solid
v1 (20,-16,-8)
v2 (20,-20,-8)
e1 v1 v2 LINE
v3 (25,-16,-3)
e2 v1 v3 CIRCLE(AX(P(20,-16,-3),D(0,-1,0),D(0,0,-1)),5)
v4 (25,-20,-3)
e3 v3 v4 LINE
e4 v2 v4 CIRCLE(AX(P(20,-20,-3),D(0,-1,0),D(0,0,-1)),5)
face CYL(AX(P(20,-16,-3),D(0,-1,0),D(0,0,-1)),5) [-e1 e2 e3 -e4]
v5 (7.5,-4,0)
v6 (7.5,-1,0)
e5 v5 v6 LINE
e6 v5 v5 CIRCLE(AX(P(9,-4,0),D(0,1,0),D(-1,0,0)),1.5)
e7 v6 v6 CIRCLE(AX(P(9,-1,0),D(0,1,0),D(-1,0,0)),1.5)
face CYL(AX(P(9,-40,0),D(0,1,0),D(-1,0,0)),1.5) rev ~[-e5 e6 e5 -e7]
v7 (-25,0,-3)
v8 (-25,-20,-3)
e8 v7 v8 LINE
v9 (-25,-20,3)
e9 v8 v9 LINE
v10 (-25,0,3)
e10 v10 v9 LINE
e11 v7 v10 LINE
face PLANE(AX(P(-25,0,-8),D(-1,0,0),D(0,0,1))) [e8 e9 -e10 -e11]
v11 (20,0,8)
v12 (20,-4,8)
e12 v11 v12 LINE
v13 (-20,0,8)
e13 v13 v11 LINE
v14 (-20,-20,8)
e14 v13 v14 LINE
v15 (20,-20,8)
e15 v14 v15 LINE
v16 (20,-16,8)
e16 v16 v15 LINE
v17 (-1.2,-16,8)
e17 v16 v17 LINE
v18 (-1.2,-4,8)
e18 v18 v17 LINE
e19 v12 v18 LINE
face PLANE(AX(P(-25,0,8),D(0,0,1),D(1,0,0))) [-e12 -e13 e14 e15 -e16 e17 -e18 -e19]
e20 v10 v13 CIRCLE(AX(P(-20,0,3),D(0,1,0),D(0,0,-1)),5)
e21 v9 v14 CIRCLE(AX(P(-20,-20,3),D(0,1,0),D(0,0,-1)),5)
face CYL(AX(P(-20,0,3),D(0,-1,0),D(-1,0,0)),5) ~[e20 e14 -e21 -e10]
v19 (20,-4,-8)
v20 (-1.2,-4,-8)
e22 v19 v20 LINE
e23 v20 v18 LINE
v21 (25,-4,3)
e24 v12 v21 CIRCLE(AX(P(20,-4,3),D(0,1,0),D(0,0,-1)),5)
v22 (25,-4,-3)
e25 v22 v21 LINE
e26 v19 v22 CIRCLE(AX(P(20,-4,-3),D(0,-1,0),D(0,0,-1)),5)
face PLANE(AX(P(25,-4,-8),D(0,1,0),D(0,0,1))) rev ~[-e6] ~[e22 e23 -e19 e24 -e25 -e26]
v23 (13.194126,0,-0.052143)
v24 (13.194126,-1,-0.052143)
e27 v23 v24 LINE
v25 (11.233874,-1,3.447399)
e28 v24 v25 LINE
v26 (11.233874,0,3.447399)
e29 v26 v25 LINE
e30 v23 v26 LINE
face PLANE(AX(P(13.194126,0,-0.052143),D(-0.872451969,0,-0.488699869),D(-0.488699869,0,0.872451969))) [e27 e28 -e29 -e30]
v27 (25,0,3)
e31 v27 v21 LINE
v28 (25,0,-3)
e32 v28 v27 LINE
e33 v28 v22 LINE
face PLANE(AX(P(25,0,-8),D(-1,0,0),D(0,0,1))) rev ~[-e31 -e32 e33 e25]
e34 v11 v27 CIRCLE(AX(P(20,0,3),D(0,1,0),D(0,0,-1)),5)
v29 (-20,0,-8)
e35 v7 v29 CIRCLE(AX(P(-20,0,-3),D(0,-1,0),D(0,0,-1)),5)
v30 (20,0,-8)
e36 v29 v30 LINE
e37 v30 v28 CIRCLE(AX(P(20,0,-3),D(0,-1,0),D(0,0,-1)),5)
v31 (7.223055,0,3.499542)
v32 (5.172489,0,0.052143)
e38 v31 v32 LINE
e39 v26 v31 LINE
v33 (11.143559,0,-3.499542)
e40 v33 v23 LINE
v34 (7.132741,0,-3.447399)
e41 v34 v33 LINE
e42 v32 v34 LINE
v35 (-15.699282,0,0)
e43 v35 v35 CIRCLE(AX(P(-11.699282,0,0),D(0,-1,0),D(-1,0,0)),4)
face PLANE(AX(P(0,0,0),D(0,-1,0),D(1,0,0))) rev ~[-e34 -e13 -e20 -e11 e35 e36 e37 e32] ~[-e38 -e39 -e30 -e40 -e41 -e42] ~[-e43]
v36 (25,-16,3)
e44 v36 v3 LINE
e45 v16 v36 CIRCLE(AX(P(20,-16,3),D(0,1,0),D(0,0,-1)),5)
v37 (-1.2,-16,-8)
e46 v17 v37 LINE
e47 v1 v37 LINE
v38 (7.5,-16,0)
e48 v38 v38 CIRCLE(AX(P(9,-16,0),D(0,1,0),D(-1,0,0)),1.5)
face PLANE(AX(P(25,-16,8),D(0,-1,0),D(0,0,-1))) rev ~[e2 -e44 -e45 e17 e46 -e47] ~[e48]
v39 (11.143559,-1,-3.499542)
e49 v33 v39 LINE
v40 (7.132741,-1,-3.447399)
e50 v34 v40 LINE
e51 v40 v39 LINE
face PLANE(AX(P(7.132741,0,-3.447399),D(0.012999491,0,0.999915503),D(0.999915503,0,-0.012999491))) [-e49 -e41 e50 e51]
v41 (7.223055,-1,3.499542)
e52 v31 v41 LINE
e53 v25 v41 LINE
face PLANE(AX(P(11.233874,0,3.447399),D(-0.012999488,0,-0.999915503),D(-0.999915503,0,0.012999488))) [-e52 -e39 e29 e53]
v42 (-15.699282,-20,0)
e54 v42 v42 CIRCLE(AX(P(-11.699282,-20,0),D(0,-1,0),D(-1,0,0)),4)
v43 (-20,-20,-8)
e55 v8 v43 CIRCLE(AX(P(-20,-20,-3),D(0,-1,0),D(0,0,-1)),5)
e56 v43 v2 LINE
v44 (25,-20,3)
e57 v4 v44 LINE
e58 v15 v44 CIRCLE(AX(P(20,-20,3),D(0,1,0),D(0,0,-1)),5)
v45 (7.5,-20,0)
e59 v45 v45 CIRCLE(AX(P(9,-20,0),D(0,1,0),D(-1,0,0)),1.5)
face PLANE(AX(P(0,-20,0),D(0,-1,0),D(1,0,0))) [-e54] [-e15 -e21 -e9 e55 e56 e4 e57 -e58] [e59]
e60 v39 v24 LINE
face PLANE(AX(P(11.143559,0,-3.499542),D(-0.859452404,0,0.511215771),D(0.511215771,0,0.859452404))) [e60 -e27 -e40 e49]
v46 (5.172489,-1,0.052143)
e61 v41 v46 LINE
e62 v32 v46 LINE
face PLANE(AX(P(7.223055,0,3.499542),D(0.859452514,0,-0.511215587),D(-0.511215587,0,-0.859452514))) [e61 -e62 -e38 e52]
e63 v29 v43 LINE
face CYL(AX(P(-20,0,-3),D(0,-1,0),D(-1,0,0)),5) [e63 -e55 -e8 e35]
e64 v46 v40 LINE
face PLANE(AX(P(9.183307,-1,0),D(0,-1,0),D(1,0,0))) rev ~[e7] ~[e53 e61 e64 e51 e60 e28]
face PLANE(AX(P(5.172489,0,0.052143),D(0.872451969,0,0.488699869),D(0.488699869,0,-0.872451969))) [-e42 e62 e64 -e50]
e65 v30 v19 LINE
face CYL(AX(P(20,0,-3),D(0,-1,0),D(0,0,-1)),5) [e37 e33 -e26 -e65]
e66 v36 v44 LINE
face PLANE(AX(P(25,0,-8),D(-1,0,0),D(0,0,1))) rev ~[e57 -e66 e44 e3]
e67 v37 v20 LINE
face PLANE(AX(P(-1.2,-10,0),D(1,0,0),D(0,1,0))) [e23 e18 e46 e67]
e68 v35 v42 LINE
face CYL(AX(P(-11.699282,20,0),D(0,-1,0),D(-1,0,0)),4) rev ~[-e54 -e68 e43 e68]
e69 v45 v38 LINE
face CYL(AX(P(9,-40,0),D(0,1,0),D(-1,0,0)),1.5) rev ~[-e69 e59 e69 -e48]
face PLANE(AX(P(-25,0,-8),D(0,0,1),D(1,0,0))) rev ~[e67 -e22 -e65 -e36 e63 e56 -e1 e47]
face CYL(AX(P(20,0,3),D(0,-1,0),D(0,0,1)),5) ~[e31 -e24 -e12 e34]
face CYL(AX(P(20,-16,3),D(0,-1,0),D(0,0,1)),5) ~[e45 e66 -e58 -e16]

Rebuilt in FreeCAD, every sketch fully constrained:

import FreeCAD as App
import Part
import Sketcher
from FreeCAD import Vector
Q = App.Units.Quantity


def edges_at(feature, points):
    """Names of the edges that pass closest to the given points."""
    edges = feature.Shape.Edges
    near = lambda p: min(range(len(edges)), key=lambda i: edges[i].distToShape(Part.Vertex(*p))[0])
    return sorted({f"Edge{near(p) + 1}" for p in points})

doc = App.newDocument("Part")
body = doc.addObject("PartDesign::Body", "Body")

sketch1 = body.newObject("Sketcher::SketchObject", "Sketch")
sketch1.AttachmentSupport = (doc.getObject("XZ_Plane"), [""])
sketch1.MapMode = "FlatFace"
sketch1.addGeometry(Part.LineSegment(Vector(-25, 8, 0), Vector(-25, -8, 0)), False)
sketch1.addGeometry(Part.LineSegment(Vector(-25, -8, 0), Vector(25, -8, 0)), False)
sketch1.addGeometry(Part.LineSegment(Vector(25, -8, 0), Vector(25, 8, 0)), False)
sketch1.addGeometry(Part.LineSegment(Vector(25, 8, 0), Vector(-25, 8, 0)), False)
sketch1.addConstraint(Sketcher.Constraint("Coincident", 0, 2, 1, 1))
sketch1.addConstraint(Sketcher.Constraint("Coincident", 1, 2, 2, 1))
sketch1.addConstraint(Sketcher.Constraint("Coincident", 2, 2, 3, 1))
sketch1.addConstraint(Sketcher.Constraint("Coincident", 3, 2, 0, 1))
sketch1.addConstraint(Sketcher.Constraint("Vertical", 0))
sketch1.addConstraint(Sketcher.Constraint("Horizontal", 1))
sketch1.addConstraint(Sketcher.Constraint("Vertical", 2))
sketch1.addConstraint(Sketcher.Constraint("Horizontal", 3))
sketch1.addConstraint(Sketcher.Constraint("Symmetric", 0, 2, 2, 2, -1, 1))
sketch1.addConstraint(Sketcher.Constraint("DistanceX", 1, 1, 1, 2, Q("50 mm")))
sketch1.addConstraint(Sketcher.Constraint("DistanceY", 0, 2, 0, 1, Q("16 mm")))
pad1 = body.newObject("PartDesign::Pad", "Pad")
pad1.Profile = sketch1
pad1.Length = 20

sketch2 = body.newObject("Sketcher::SketchObject", "Sketch001")
sketch2.AttachmentSupport = (doc.getObject("XZ_Plane"), [""])
sketch2.MapMode = "FlatFace"
sketch2.addGeometry(Part.Circle(Vector(-11.7, 0, 0), Vector(0, 0, 1), 4), False)
sketch2.addConstraint(Sketcher.Constraint("PointOnObject", 0, 3, -1))
sketch2.addConstraint(Sketcher.Constraint("Diameter", 0, Q("8 mm")))
sketch2.addConstraint(Sketcher.Constraint("DistanceX", 0, 3, -1, 1, Q("11.699282 mm")))
doc.recompute()
hole = body.newObject("PartDesign::Hole", "Hole")
hole.Profile = sketch2
hole.ThreadType = "None"
hole.Diameter = 8
hole.DepthType = "Dimension"
hole.Depth = 20
hole.DrillPoint = "Flat"
hole.Reversed = True

sketch3 = body.newObject("Sketcher::SketchObject", "Sketch002")
sketch3.AttachmentSupport = (doc.getObject("XZ_Plane"), [""])
sketch3.MapMode = "FlatFace"
sketch3.AttachmentOffset = App.Placement(Vector(0, 0, 20), App.Rotation())
sketch3.addGeometry(Part.Circle(Vector(9, 0, 0), Vector(0, 0, 1), 1.5), False)
sketch3.addConstraint(Sketcher.Constraint("PointOnObject", 0, 3, -1))
sketch3.addConstraint(Sketcher.Constraint("Diameter", 0, Q("3 mm")))
sketch3.addConstraint(Sketcher.Constraint("DistanceX", -1, 1, 0, 3, Q("9 mm")))
doc.recompute()
hole2 = body.newObject("PartDesign::Hole", "Hole001")
hole2.Profile = sketch3
hole2.ThreadType = "None"
hole2.Diameter = 3
hole2.DepthType = "Dimension"
hole2.Depth = 20
hole2.DrillPoint = "Flat"

sketch4 = body.newObject("Sketcher::SketchObject", "Sketch003")
sketch4.AttachmentSupport = (doc.getObject("YZ_Plane"), [""])
sketch4.MapMode = "FlatFace"
sketch4.AttachmentOffset = App.Placement(Vector(0, 0, 25), App.Rotation())
sketch4.addGeometry(Part.LineSegment(Vector(-16, 8, 0), Vector(-16, -8, 0)), False)
sketch4.addGeometry(Part.LineSegment(Vector(-16, -8, 0), Vector(-4, -8, 0)), False)
sketch4.addGeometry(Part.LineSegment(Vector(-4, -8, 0), Vector(-4, 8, 0)), False)
sketch4.addGeometry(Part.LineSegment(Vector(-4, 8, 0), Vector(-16, 8, 0)), False)
sketch4.addConstraint(Sketcher.Constraint("Coincident", 0, 2, 1, 1))
sketch4.addConstraint(Sketcher.Constraint("Coincident", 1, 2, 2, 1))
sketch4.addConstraint(Sketcher.Constraint("Coincident", 2, 2, 3, 1))
sketch4.addConstraint(Sketcher.Constraint("Coincident", 3, 2, 0, 1))
sketch4.addConstraint(Sketcher.Constraint("Vertical", 0))
sketch4.addConstraint(Sketcher.Constraint("Horizontal", 1))
sketch4.addConstraint(Sketcher.Constraint("Vertical", 2))
sketch4.addConstraint(Sketcher.Constraint("Horizontal", 3))
sketch4.addConstraint(Sketcher.Constraint("DistanceX", 1, 1, 1, 2, Q("12 mm")))
sketch4.addConstraint(Sketcher.Constraint("DistanceY", 0, 2, 0, 1, Q("16 mm")))
sketch4.addConstraint(Sketcher.Constraint("DistanceX", 0, 2, -1, 1, Q("16 mm")))
sketch4.addConstraint(Sketcher.Constraint("DistanceY", 0, 2, -1, 1, Q("8 mm")))
pocket1 = body.newObject("PartDesign::Pocket", "Pocket")
pocket1.Profile = sketch4
pocket1.Length = 26.2
doc.recompute()

fillet = body.newObject("PartDesign::Fillet", "Fillet")
fillet.Base = (pocket1, edges_at(pocket1, [
    (25, -18, 8),
    (25, -2, 8),
    (25, -2, -8),
    (25, -18, -8),
    (-25, -10, -8),
    (-25, -10, 8),
]))
fillet.Radius = 5

sketch5 = body.newObject("Sketcher::SketchObject", "Sketch004")
sketch5.AttachmentSupport = (doc.getObject("XZ_Plane"), [""])
sketch5.MapMode = "FlatFace"
sketch5.addGeometry(Part.LineSegment(Vector(11.1, -3.5, 0), Vector(13.2, -0.1, 0)), False)
sketch5.addGeometry(Part.LineSegment(Vector(13.2, -0.1, 0), Vector(11.2, 3.4, 0)), False)
sketch5.addGeometry(Part.LineSegment(Vector(11.2, 3.4, 0), Vector(7.2, 3.5, 0)), False)
sketch5.addGeometry(Part.LineSegment(Vector(7.2, 3.5, 0), Vector(5.2, 0.1, 0)), False)
sketch5.addGeometry(Part.LineSegment(Vector(5.2, 0.1, 0), Vector(7.1, -3.4, 0)), False)
sketch5.addGeometry(Part.LineSegment(Vector(7.1, -3.4, 0), Vector(11.1, -3.5, 0)), False)
sketch5.addConstraint(Sketcher.Constraint("Coincident", 0, 2, 1, 1))
sketch5.addConstraint(Sketcher.Constraint("Coincident", 1, 2, 2, 1))
sketch5.addConstraint(Sketcher.Constraint("Coincident", 2, 2, 3, 1))
sketch5.addConstraint(Sketcher.Constraint("Coincident", 3, 2, 4, 1))
sketch5.addConstraint(Sketcher.Constraint("Coincident", 4, 2, 5, 1))
sketch5.addConstraint(Sketcher.Constraint("Coincident", 5, 2, 0, 1))
sketch5.addConstraint(Sketcher.Constraint("Parallel", 0, 3))
sketch5.addConstraint(Sketcher.Constraint("Parallel", 1, 4))
sketch5.addConstraint(Sketcher.Constraint("Parallel", 2, 5))
sketch5.addConstraint(Sketcher.Constraint("Equal", 0, 1))
sketch5.addConstraint(Sketcher.Constraint("Equal", 1, 2))
sketch5.addConstraint(Sketcher.Constraint("Equal", 2, 3))
sketch5.addConstraint(Sketcher.Constraint("DistanceY", -1, 1, 1, 2, Q("3.447399 mm")))
sketch5.addConstraint(Sketcher.Constraint("DistanceY", 4, 2, -1, 1, Q("3.447399 mm")))
sketch5.addConstraint(Sketcher.Constraint("DistanceY", 3, 2, 2, 2, Q("3.447399 mm")))
sketch5.addConstraint(Sketcher.Constraint("DistanceY", -1, 1, 2, 2, Q("3.499542 mm")))
sketch5.addConstraint(Sketcher.Constraint("DistanceX", -1, 1, 3, 2, Q("5.172489 mm")))
sketch5.addConstraint(Sketcher.Constraint("DistanceX", -1, 1, 4, 2, Q("7.132741 mm")))
pocket2 = body.newObject("PartDesign::Pocket", "Pocket001")
pocket2.Profile = sketch5
pocket2.Length = 1
pocket2.Reversed = True

doc.recompute()
